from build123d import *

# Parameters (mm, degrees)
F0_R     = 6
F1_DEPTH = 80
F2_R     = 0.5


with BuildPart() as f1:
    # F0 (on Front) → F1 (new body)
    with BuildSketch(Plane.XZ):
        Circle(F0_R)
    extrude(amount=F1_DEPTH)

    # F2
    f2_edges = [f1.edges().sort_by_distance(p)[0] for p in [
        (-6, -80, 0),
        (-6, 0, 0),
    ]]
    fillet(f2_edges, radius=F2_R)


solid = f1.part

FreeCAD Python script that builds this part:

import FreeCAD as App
import Part
import Sketcher


def edges_at(feature, points):
    """Names of the edges that pass closest to the given points."""
    edges = feature.Shape.Edges
    near = lambda p: min(range(len(edges)), key=lambda i: edges[i].distToShape(Part.Vertex(*p))[0])
    return sorted({f"Edge{near(p) + 1}" for p in points})

doc = App.newDocument("Part")
body = doc.addObject("PartDesign::Body", "Body")

# Sketch on XZ plane
sketch1 = body.newObject("Sketcher::SketchObject", "Sketch")
sketch1.AttachmentSupport = (doc.getObject("XZ_Plane"), [""])
sketch1.MapMode = "FlatFace"
sketch1.addGeometry(Part.Circle(App.Vector(0, 0, 0), App.Vector(0, 0, 1), 6), False)
sketch1.addConstraint(Sketcher.Constraint("Coincident", 0, 3, -1, 1))
sketch1.addConstraint(Sketcher.Constraint("Diameter", 0, 12.0))
pad1 = body.newObject("PartDesign::Pad", "Pad")
pad1.Profile = sketch1
pad1.Length = 80
doc.recompute()

fillet = body.newObject("PartDesign::Fillet", "Fillet")
fillet.Base = (pad1, edges_at(pad1, [(-6, -80, 0), (-6, 0, 0)]))
fillet.Radius = 0.5

doc.recompute()
